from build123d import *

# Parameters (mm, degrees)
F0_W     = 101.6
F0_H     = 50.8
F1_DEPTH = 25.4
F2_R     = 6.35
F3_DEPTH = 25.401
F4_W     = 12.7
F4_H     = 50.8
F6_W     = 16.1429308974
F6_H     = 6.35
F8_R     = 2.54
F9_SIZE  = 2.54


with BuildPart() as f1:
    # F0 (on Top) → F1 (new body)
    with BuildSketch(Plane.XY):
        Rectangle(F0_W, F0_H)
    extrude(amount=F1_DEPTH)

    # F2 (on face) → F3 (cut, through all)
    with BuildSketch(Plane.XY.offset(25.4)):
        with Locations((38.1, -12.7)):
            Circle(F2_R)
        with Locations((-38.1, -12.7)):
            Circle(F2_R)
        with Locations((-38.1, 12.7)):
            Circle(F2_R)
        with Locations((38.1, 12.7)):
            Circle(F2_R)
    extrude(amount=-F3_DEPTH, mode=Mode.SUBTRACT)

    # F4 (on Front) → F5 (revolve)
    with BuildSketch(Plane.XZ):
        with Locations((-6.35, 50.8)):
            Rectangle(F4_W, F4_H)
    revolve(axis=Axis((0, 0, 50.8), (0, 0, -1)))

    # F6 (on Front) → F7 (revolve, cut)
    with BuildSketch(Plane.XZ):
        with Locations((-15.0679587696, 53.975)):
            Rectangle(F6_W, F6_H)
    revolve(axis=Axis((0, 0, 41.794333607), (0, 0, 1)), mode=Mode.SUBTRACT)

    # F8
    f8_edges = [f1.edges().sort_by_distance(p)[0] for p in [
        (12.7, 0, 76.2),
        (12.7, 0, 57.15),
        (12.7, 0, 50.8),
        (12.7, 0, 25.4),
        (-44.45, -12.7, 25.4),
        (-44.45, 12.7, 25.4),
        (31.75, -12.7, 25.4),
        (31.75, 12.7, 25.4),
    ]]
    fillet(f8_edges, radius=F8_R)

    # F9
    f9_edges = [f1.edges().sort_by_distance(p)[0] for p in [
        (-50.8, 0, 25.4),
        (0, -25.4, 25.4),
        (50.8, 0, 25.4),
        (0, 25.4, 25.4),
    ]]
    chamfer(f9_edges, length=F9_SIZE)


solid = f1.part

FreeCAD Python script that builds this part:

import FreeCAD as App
import Part
import Sketcher
Q = App.Units.Quantity


def edges_at(feature, points):
    """Names of the edges that pass closest to the given points."""
    edges = feature.Shape.Edges
    near = lambda p: min(range(len(edges)), key=lambda i: edges[i].distToShape(Part.Vertex(*p))[0])
    return sorted({f"Edge{near(p) + 1}" for p in points})

doc = App.newDocument("Part")
body = doc.addObject("PartDesign::Body", "Body")

# Sketch on XY plane
sketch1 = body.newObject("Sketcher::SketchObject", "Sketch")
sketch1.AttachmentSupport = (doc.getObject("XY_Plane"), [""])
sketch1.MapMode = "FlatFace"
sketch1.addGeometry(Part.LineSegment(App.Vector(-51, 25, 0), App.Vector(-51, -25, 0)), False)
sketch1.addGeometry(Part.LineSegment(App.Vector(-51, -25, 0), App.Vector(51, -25, 0)), False)
sketch1.addGeometry(Part.LineSegment(App.Vector(51, -25, 0), App.Vector(51, 25, 0)), False)
sketch1.addGeometry(Part.LineSegment(App.Vector(51, 25, 0), App.Vector(-51, 25, 0)), False)
sketch1.addConstraint(Sketcher.Constraint("Coincident", 0, 2, 1, 1))
sketch1.addConstraint(Sketcher.Constraint("Coincident", 1, 2, 2, 1))
sketch1.addConstraint(Sketcher.Constraint("Coincident", 2, 2, 3, 1))
sketch1.addConstraint(Sketcher.Constraint("Coincident", 3, 2, 0, 1))
sketch1.addConstraint(Sketcher.Constraint("Vertical", 0))
sketch1.addConstraint(Sketcher.Constraint("Horizontal", 1))
sketch1.addConstraint(Sketcher.Constraint("Vertical", 2))
sketch1.addConstraint(Sketcher.Constraint("Horizontal", 3))
sketch1.addConstraint(Sketcher.Constraint("Symmetric", 0, 2, 2, 2, -1, 1))
sketch1.addConstraint(Sketcher.Constraint("DistanceX", 1, 1, 1, 2, Q("4 in")))
sketch1.addConstraint(Sketcher.Constraint("DistanceY", 0, 2, 0, 1, Q("2 in")))
pad1 = body.newObject("PartDesign::Pad", "Pad")
pad1.Profile = sketch1
pad1.Length = Q("1 in")

# Sketch on XY plane
sketch2 = body.newObject("Sketcher::SketchObject", "Sketch001")
sketch2.AttachmentSupport = (doc.getObject("XY_Plane"), [""])
sketch2.MapMode = "FlatFace"
sketch2.AttachmentOffset = App.Placement(App.Vector(0, 0, 1 * 25.4), App.Rotation())
sketch2.addGeometry(Part.Circle(App.Vector(38, -13, 0), App.Vector(0, 0, 1), 6), False)
sketch2.addGeometry(Part.Circle(App.Vector(-38, -13, 0), App.Vector(0, 0, 1), 6), False)
sketch2.addGeometry(Part.Circle(App.Vector(-38, 13, 0), App.Vector(0, 0, 1), 6), False)
sketch2.addGeometry(Part.Circle(App.Vector(38, 13, 0), App.Vector(0, 0, 1), 6), False)
sketch2.addConstraint(Sketcher.Constraint("Equal", 0, 1))
sketch2.addConstraint(Sketcher.Constraint("Equal", 1, 2))
sketch2.addConstraint(Sketcher.Constraint("Equal", 2, 3))
sketch2.addConstraint(Sketcher.Constraint("Symmetric", 0, 3, 2, 3, -1, 1))
sketch2.addConstraint(Sketcher.Constraint("Symmetric", 1, 3, 3, 3, -1, 1))
sketch2.addConstraint(Sketcher.Constraint("Symmetric", 0, 3, 1, 3, -2))
sketch2.addConstraint(Sketcher.Constraint("Diameter", 0, Q("0.5 in")))
sketch2.addConstraint(Sketcher.Constraint("DistanceX", 1, 3, 0, 3, Q("3 in")))
sketch2.addConstraint(Sketcher.Constraint("DistanceY", 1, 3, 2, 3, Q("1 in")))
pocket1 = body.newObject("PartDesign::Pocket", "Pocket")
pocket1.Profile = sketch2
pocket1.Type = "ThroughAll"

# Sketch on XZ plane
sketch3 = body.newObject("Sketcher::SketchObject", "Sketch002")
sketch3.AttachmentSupport = (doc.getObject("XZ_Plane"), [""])
sketch3.MapMode = "FlatFace"
sketch3.addGeometry(Part.LineSegment(App.Vector(-13, 76, 0), App.Vector(-13, 25, 0)), False)
sketch3.addGeometry(Part.LineSegment(App.Vector(-13, 25, 0), App.Vector(0, 25, 0)), False)
sketch3.addGeometry(Part.LineSegment(App.Vector(0, 25, 0), App.Vector(0, 76, 0)), False)
sketch3.addGeometry(Part.LineSegment(App.Vector(0, 76, 0), App.Vector(-13, 76, 0)), False)
sketch3.addConstraint(Sketcher.Constraint("Coincident", 0, 2, 1, 1))
sketch3.addConstraint(Sketcher.Constraint("Coincident", 1, 2, 2, 1))
sketch3.addConstraint(Sketcher.Constraint("Coincident", 2, 2, 3, 1))
sketch3.addConstraint(Sketcher.Constraint("Coincident", 3, 2, 0, 1))
sketch3.addConstraint(Sketcher.Constraint("Vertical", 0))
sketch3.addConstraint(Sketcher.Constraint("Horizontal", 1))
sketch3.addConstraint(Sketcher.Constraint("Vertical", 2))
sketch3.addConstraint(Sketcher.Constraint("Horizontal", 3))
sketch3.addConstraint(Sketcher.Constraint("PointOnObject", 1, 2, -2))
sketch3.addConstraint(Sketcher.Constraint("DistanceY", 0, 2, 0, 1, Q("2 in")))
sketch3.addConstraint(Sketcher.Constraint("DistanceX", 1, 1, 1, 2, Q("0.5 in")))
sketch3.addConstraint(Sketcher.Constraint("DistanceY", -1, 1, 0, 2, Q("1 in")))
revolution = body.newObject("PartDesign::Revolution", "Revolution")
revolution.Profile = sketch3
revolution.ReferenceAxis = (sketch3, ["V_Axis"])
revolution.Angle = 360

# Sketch on XZ plane
sketch4 = body.newObject("Sketcher::SketchObject", "Sketch003")
sketch4.AttachmentSupport = (doc.getObject("XZ_Plane"), [""])
sketch4.MapMode = "FlatFace"
sketch4.addGeometry(Part.LineSegment(App.Vector(-23, 57, 0), App.Vector(-23, 51, 0)), False)
sketch4.addGeometry(Part.LineSegment(App.Vector(-23, 51, 0), App.Vector(-7, 51, 0)), False)
sketch4.addGeometry(Part.LineSegment(App.Vector(-7, 51, 0), App.Vector(-7, 57, 0)), False)
sketch4.addGeometry(Part.LineSegment(App.Vector(-7, 57, 0), App.Vector(-23, 57, 0)), False)
sketch4.addConstraint(Sketcher.Constraint("Coincident", 0, 2, 1, 1))
sketch4.addConstraint(Sketcher.Constraint("Coincident", 1, 2, 2, 1))
sketch4.addConstraint(Sketcher.Constraint("Coincident", 2, 2, 3, 1))
sketch4.addConstraint(Sketcher.Constraint("Coincident", 3, 2, 0, 1))
sketch4.addConstraint(Sketcher.Constraint("Vertical", 0))
sketch4.addConstraint(Sketcher.Constraint("Horizontal", 1))
sketch4.addConstraint(Sketcher.Constraint("Vertical", 2))
sketch4.addConstraint(Sketcher.Constraint("Horizontal", 3))
sketch4.addConstraint(Sketcher.Constraint("DistanceY", -1, 1, 0, 2, Q("2 in")))
sketch4.addConstraint(Sketcher.Constraint("DistanceY", 0, 2, 0, 1, Q("0.25 in")))
sketch4.addConstraint(Sketcher.Constraint("DistanceX", 1, 1, 1, 2, Q("16.142931 mm")))
sketch4.addConstraint(Sketcher.Constraint("DistanceX", 0, 2, -1, 1, Q("23.139424 mm")))
groove = body.newObject("PartDesign::Groove", "Groove")
groove.Profile = sketch4
groove.ReferenceAxis = (sketch4, ["V_Axis"])
groove.Angle = 360
doc.recompute()

fillet = body.newObject("PartDesign::Fillet", "Fillet")
fillet.Base = (groove, edges_at(groove, [
    (12.7, 0, 76.2),
    (12.7, 0, 57.15),
    (12.7, 0, 50.8),
    (12.7, 0, 25.4),
    (-44.45, -12.7, 25.4),
    (-44.45, 12.7, 25.4),
    (31.75, -12.7, 25.4),
    (31.75, 12.7, 25.4),
]))
fillet.Radius = Q("0.1 in")
doc.recompute()

chamfer = body.newObject("PartDesign::Chamfer", "Chamfer")
chamfer.Base = (fillet, edges_at(fillet, [
    (-50.8, 0, 25.4),
    (0, -25.4, 25.4),
    (50.8, 0, 25.4),
    (0, 25.4, 25.4),
]))
chamfer.Size = Q("0.1 in")

doc.recompute()
